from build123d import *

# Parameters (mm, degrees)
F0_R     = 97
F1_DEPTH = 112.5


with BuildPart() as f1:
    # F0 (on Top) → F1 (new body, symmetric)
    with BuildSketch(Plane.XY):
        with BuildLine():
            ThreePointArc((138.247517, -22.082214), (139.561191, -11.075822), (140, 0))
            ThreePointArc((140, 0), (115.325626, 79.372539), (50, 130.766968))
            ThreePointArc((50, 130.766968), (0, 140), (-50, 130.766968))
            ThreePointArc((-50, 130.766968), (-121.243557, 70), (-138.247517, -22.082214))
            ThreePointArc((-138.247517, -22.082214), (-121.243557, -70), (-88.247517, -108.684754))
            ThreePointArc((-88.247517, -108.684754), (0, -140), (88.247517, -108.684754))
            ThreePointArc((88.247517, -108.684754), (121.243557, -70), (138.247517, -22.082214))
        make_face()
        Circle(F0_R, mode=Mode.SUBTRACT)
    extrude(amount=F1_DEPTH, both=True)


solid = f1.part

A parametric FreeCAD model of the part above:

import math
import FreeCAD as App
import Part
import Sketcher

V = App.Vector
Q = App.Units.Quantity

doc = App.newDocument("Part")
body = doc.addObject("PartDesign::Body", "Body")

# Sketch on XY plane
sketch1 = doc.addObject("Sketcher::SketchObject", "Sketch")
body.addObject(sketch1)
sketch1.AttachmentSupport = (doc.XY_Plane, [""])
sketch1.MapMode = "FlatFace"
sketch1.addGeometry(Part.ArcOfCircle(Part.Circle(V(-0.000227, 0.000015, 0), V(0, 0, 1), 140.000227), math.radians(-9.075159), math.radians(-0.000006)), False)
sketch1.addGeometry(Part.ArcOfCircle(Part.Circle(V(0, 0, 0), V(0, 0, 1), 140), math.radians(0), math.radians(69.075168)), False)
sketch1.addGeometry(Part.ArcOfCircle(Part.Circle(V(0, 0.000004, 0), V(0, 0, 1), 139.999996), math.radians(69.075167), math.radians(110.924833)), False)
sketch1.addGeometry(Part.ArcOfCircle(Part.Circle(V(-0.000002, 0, 0), V(0, 0, 1), 139.999999), math.radians(110.924832), math.radians(189.075168)), False)
sketch1.addGeometry(Part.ArcOfCircle(Part.Circle(V(-0.000002, -0.000001, 0), V(0, 0, 1), 139.999998), math.radians(-170.924833), math.radians(-129.075167)), False)
sketch1.addGeometry(Part.ArcOfCircle(Part.Circle(V(0, 0, 0), V(0, 0, 1), 140), math.radians(-129.075168), math.radians(-50.924832)), False)
sketch1.addGeometry(Part.ArcOfCircle(Part.Circle(V(0.000002, -0.000001, 0), V(0, 0, 1), 139.999998), math.radians(-50.924833), math.radians(-9.075167)), False)
sketch1.addGeometry(Part.Circle(V(0, 0, 0), V(0, 0, 1), 97), False)
sketch1.addConstraint(Sketcher.Constraint("Coincident", 0, 2, 1, 1))
sketch1.addConstraint(Sketcher.Constraint("Coincident", 1, 2, 2, 1))
sketch1.addConstraint(Sketcher.Constraint("Coincident", 2, 2, 3, 1))
sketch1.addConstraint(Sketcher.Constraint("Coincident", 3, 2, 4, 1))
sketch1.addConstraint(Sketcher.Constraint("Coincident", 4, 2, 5, 1))
sketch1.addConstraint(Sketcher.Constraint("Coincident", 5, 2, 6, 1))
sketch1.addConstraint(Sketcher.Constraint("Coincident", 6, 2, 0, 1))
sketch1.addConstraint(Sketcher.Constraint("Coincident", 1, 3, -1, 1))
sketch1.addConstraint(Sketcher.Constraint("Coincident", 2, 3, -1, 1))
sketch1.addConstraint(Sketcher.Constraint("Coincident", 3, 3, -1, 1))
sketch1.addConstraint(Sketcher.Constraint("Coincident", 4, 3, -1, 1))
sketch1.addConstraint(Sketcher.Constraint("Coincident", 5, 3, -1, 1))
sketch1.addConstraint(Sketcher.Constraint("Coincident", 6, 3, -1, 1))
sketch1.addConstraint(Sketcher.Constraint("Coincident", 7, 3, -1, 1))
sketch1.addConstraint(Sketcher.Constraint("PointOnObject", 0, 2, -1))
sketch1.addConstraint(Sketcher.Constraint("Diameter", 7, Q("194 mm")))
sketch1.addConstraint(Sketcher.Constraint("Radius", 1, Q("140 mm")))
sketch1.addConstraint(Sketcher.Constraint("DistanceX", -1, 1, 1, 2, Q("50 mm")))
sketch1.addConstraint(Sketcher.Constraint("DistanceX", 2, 2, -1, 1, Q("50 mm")))
sketch1.addConstraint(Sketcher.Constraint("DistanceX", 3, 2, 4, 2, Q("50 mm")))
sketch1.addConstraint(Sketcher.Constraint("DistanceX", 5, 2, 6, 2, Q("50 mm")))
sketch1.addConstraint(Sketcher.Constraint("Radius", 0, Q("140.000227 mm")))
sketch1.addConstraint(Sketcher.Constraint("DistanceX", 3, 2, 0, 3, Q("138.24729 mm")))
sketch1.addConstraint(Sketcher.Constraint("DistanceY", 5, 2, 6, 2, Q("86.60254 mm")))
pad1 = doc.addObject("PartDesign::Pad", "Pad")
body.addObject(pad1)
pad1.Profile = sketch1
pad1.Length = 225
pad1.Midplane = True

doc.recompute()
